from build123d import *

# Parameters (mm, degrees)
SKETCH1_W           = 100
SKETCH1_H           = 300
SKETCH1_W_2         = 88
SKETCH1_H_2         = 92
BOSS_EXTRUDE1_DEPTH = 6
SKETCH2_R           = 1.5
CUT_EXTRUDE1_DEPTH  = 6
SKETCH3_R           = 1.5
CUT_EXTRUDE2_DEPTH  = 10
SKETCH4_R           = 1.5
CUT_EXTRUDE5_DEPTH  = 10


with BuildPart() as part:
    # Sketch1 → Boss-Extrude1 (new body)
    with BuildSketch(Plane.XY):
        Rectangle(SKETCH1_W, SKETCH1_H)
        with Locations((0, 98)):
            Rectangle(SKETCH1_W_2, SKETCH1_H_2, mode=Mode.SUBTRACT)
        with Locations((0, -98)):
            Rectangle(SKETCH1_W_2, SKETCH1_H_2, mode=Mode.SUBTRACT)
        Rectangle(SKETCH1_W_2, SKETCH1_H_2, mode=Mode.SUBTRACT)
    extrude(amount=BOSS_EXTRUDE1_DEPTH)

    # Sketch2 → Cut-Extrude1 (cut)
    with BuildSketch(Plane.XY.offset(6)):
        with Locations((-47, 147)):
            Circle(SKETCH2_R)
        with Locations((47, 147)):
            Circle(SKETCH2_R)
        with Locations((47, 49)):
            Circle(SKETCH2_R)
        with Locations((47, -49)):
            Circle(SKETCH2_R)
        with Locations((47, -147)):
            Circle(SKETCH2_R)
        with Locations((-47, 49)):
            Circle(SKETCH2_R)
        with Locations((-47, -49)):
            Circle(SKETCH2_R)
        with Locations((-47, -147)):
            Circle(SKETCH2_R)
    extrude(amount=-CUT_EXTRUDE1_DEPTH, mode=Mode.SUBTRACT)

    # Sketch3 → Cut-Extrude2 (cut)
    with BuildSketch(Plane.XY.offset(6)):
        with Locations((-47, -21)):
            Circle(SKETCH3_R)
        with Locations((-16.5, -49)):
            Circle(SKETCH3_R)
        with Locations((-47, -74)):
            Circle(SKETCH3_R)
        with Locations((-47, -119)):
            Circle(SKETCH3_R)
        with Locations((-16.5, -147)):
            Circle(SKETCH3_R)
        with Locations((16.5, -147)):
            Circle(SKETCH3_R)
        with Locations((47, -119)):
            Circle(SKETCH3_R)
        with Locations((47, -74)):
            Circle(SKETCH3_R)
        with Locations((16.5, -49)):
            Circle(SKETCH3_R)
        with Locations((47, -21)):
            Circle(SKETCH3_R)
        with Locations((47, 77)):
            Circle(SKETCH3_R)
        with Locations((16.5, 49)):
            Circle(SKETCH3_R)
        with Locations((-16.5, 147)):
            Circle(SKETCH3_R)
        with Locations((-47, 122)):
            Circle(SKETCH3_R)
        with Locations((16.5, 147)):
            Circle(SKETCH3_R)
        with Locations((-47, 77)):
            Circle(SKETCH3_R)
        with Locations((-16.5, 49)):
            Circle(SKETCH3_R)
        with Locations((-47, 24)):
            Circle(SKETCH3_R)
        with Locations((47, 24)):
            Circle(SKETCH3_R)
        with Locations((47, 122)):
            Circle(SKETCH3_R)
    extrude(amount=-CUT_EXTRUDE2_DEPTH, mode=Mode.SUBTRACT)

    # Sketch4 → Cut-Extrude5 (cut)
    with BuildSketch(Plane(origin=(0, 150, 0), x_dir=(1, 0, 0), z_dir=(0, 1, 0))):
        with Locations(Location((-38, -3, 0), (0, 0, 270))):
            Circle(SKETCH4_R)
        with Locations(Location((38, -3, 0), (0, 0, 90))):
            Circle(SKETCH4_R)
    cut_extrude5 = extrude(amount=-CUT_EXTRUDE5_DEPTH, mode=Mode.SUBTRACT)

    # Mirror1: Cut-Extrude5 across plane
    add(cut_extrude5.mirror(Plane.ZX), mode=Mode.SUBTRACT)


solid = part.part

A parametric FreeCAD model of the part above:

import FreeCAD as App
import Part
import Sketcher


def add_polygon(sketch, points):
    """Adds a closed chain of lines whose ends are joined by coincident constraints."""
    first, n = sketch.GeometryCount, len(points)
    for a, b in zip(points, points[1:] + points[:1]):
        sketch.addGeometry(Part.LineSegment(App.Vector(*a, 0), App.Vector(*b, 0)), False)
    for i in range(n):
        sketch.addConstraint(Sketcher.Constraint("Coincident", first + i, 2, first + (i + 1) % n, 1))

doc = App.newDocument("Part")
body = doc.addObject("PartDesign::Body", "Body")

# Sketch on XY plane
sketch1 = doc.addObject("Sketcher::SketchObject", "Sketch")
body.addObject(sketch1)
sketch1.AttachmentSupport = (doc.XY_Plane, [""])
sketch1.MapMode = "FlatFace"
add_polygon(sketch1, [(-50, 150), (-50, -150), (50, -150), (50, 150)])  # lines 0-3
add_polygon(sketch1, [(44, -144), (-44, -144), (-44, -52), (44, -52)])  # lines 4-7
add_polygon(sketch1, [(44, -46), (-44, -46), (-44, 46), (44, 46)])  # lines 8-11
add_polygon(sketch1, [(44, 52), (-44, 52), (-44, 144), (44, 144)])  # lines 12-15
sketch1.addConstraint(Sketcher.Constraint("Vertical", 0))
sketch1.addConstraint(Sketcher.Constraint("Horizontal", 1))
sketch1.addConstraint(Sketcher.Constraint("Vertical", 2))
sketch1.addConstraint(Sketcher.Constraint("Horizontal", 3))
sketch1.addConstraint(Sketcher.Constraint("Horizontal", 4))
sketch1.addConstraint(Sketcher.Constraint("Vertical", 5))
sketch1.addConstraint(Sketcher.Constraint("Horizontal", 6))
sketch1.addConstraint(Sketcher.Constraint("Vertical", 7))
sketch1.addConstraint(Sketcher.Constraint("Horizontal", 8))
sketch1.addConstraint(Sketcher.Constraint("Vertical", 9))
sketch1.addConstraint(Sketcher.Constraint("Horizontal", 10))
sketch1.addConstraint(Sketcher.Constraint("Vertical", 11))
sketch1.addConstraint(Sketcher.Constraint("Horizontal", 12))
sketch1.addConstraint(Sketcher.Constraint("Vertical", 13))
sketch1.addConstraint(Sketcher.Constraint("Horizontal", 14))
sketch1.addConstraint(Sketcher.Constraint("Vertical", 15))
sketch1.addConstraint(Sketcher.Constraint("Symmetric", 0, 2, 2, 2, -1, 1))
sketch1.addConstraint(Sketcher.Constraint("Symmetric", 8, 2, 10, 2, -1, 1))
sketch1.addConstraint(Sketcher.Constraint("Symmetric", 6, 2, 12, 2, -1, 1))
sketch1.addConstraint(Sketcher.Constraint("Symmetric", 4, 2, 14, 2, -1, 1))
sketch1.addConstraint(Sketcher.Constraint("Vertical", 5, 2, 8, 2))
sketch1.addConstraint(Sketcher.Constraint("Vertical", 7, 2, 10, 2))
sketch1.addConstraint(Sketcher.Constraint("Equal", 7, 9))
sketch1.addConstraint(Sketcher.Constraint("DistanceX", 1, 1, 1, 2, 100.0))
sketch1.addConstraint(Sketcher.Constraint("DistanceX", 4, 2, 4, 1, 88.0))
sketch1.addConstraint(Sketcher.Constraint("DistanceY", 0, 2, 0, 1, 300.0))
sketch1.addConstraint(Sketcher.Constraint("DistanceY", 5, 1, 5, 2, 92.0))
sketch1.addConstraint(Sketcher.Constraint("DistanceY", 4, 2, -1, 1, 144.0))
pad1 = doc.addObject("PartDesign::Pad", "Pad")
body.addObject(pad1)
pad1.Profile = sketch1
pad1.Length = 6

# Sketch on XY plane
sketch2 = doc.addObject("Sketcher::SketchObject", "Sketch001")
body.addObject(sketch2)
sketch2.AttachmentSupport = (doc.XY_Plane, [""])
sketch2.MapMode = "FlatFace"
sketch2.AttachmentOffset = App.Placement(App.Vector(0, 0, 6), App.Rotation())
sketch2.addGeometry(Part.Circle(App.Vector(-47, 147, 0), App.Vector(0, 0, 1), 1.5), False)
sketch2.addGeometry(Part.Circle(App.Vector(47, 147, 0), App.Vector(0, 0, 1), 1.5), False)
sketch2.addGeometry(Part.Circle(App.Vector(47, 49, 0), App.Vector(0, 0, 1), 1.5), False)
sketch2.addGeometry(Part.Circle(App.Vector(47, -49, 0), App.Vector(0, 0, 1), 1.5), False)
sketch2.addGeometry(Part.Circle(App.Vector(47, -147, 0), App.Vector(0, 0, 1), 1.5), False)
sketch2.addGeometry(Part.Circle(App.Vector(-47, 49, 0), App.Vector(0, 0, 1), 1.5), False)
sketch2.addGeometry(Part.Circle(App.Vector(-47, -49, 0), App.Vector(0, 0, 1), 1.5), False)
sketch2.addGeometry(Part.Circle(App.Vector(-47, -147, 0), App.Vector(0, 0, 1), 1.5), False)
sketch2.addConstraint(Sketcher.Constraint("Equal", 0, 1))
sketch2.addConstraint(Sketcher.Constraint("Equal", 1, 2))
sketch2.addConstraint(Sketcher.Constraint("Equal", 2, 3))
sketch2.addConstraint(Sketcher.Constraint("Equal", 3, 4))
sketch2.addConstraint(Sketcher.Constraint("Equal", 4, 5))
sketch2.addConstraint(Sketcher.Constraint("Equal", 5, 6))
sketch2.addConstraint(Sketcher.Constraint("Equal", 6, 7))
sketch2.addConstraint(Sketcher.Constraint("Symmetric", 0, 3, 4, 3, -1, 1))
sketch2.addConstraint(Sketcher.Constraint("Symmetric", 3, 3, 5, 3, -1, 1))
sketch2.addConstraint(Sketcher.Constraint("Symmetric", 2, 3, 6, 3, -1, 1))
sketch2.addConstraint(Sketcher.Constraint("Symmetric", 1, 3, 7, 3, -1, 1))
sketch2.addConstraint(Sketcher.Constraint("Symmetric", 0, 3, 1, 3, -2))
sketch2.addConstraint(Sketcher.Constraint("Symmetric", 2, 3, 5, 3, -2))
sketch2.addConstraint(Sketcher.Constraint("Vertical", 1, 3, 2, 3))
sketch2.addConstraint(Sketcher.Constraint("Diameter", 0, 3.0))
sketch2.addConstraint(Sketcher.Constraint("DistanceX", 0, 3, -1, 1, 47.0))
sketch2.addConstraint(Sketcher.Constraint("DistanceY", -1, 1, 0, 3, 147.0))
sketch2.addConstraint(Sketcher.Constraint("DistanceY", -1, 1, 2, 3, 49.0))
pocket1 = doc.addObject("PartDesign::Pocket", "Pocket")
body.addObject(pocket1)
pocket1.Profile = sketch2
pocket1.Length = 6

# Sketch on XY plane
sketch3 = doc.addObject("Sketcher::SketchObject", "Sketch002")
body.addObject(sketch3)
sketch3.AttachmentSupport = (doc.XY_Plane, [""])
sketch3.MapMode = "FlatFace"
sketch3.AttachmentOffset = App.Placement(App.Vector(0, 0, 6), App.Rotation())
sketch3.addGeometry(Part.Circle(App.Vector(-47, -21, 0), App.Vector(0, 0, 1), 1.5), False)
sketch3.addGeometry(Part.Circle(App.Vector(-16.5, -49, 0), App.Vector(0, 0, 1), 1.5), False)
sketch3.addGeometry(Part.Circle(App.Vector(-47, -74, 0), App.Vector(0, 0, 1), 1.5), False)
sketch3.addGeometry(Part.Circle(App.Vector(-47, -119, 0), App.Vector(0, 0, 1), 1.5), False)
sketch3.addGeometry(Part.Circle(App.Vector(-16.5, -147, 0), App.Vector(0, 0, 1), 1.5), False)
sketch3.addGeometry(Part.Circle(App.Vector(16.5, -147, 0), App.Vector(0, 0, 1), 1.5), False)
sketch3.addGeometry(Part.Circle(App.Vector(47, -119, 0), App.Vector(0, 0, 1), 1.5), False)
sketch3.addGeometry(Part.Circle(App.Vector(47, -74, 0), App.Vector(0, 0, 1), 1.5), False)
sketch3.addGeometry(Part.Circle(App.Vector(16.5, -49, 0), App.Vector(0, 0, 1), 1.5), False)
sketch3.addGeometry(Part.Circle(App.Vector(47, -21, 0), App.Vector(0, 0, 1), 1.5), False)
sketch3.addGeometry(Part.Circle(App.Vector(47, 77, 0), App.Vector(0, 0, 1), 1.5), False)
sketch3.addGeometry(Part.Circle(App.Vector(16.5, 49, 0), App.Vector(0, 0, 1), 1.5), False)
sketch3.addGeometry(Part.Circle(App.Vector(-16.5, 147, 0), App.Vector(0, 0, 1), 1.5), False)
sketch3.addGeometry(Part.Circle(App.Vector(-47, 122, 0), App.Vector(0, 0, 1), 1.5), False)
sketch3.addGeometry(Part.Circle(App.Vector(16.5, 147, 0), App.Vector(0, 0, 1), 1.5), False)
sketch3.addGeometry(Part.Circle(App.Vector(-47, 77, 0), App.Vector(0, 0, 1), 1.5), False)
sketch3.addGeometry(Part.Circle(App.Vector(-16.5, 49, 0), App.Vector(0, 0, 1), 1.5), False)
sketch3.addGeometry(Part.Circle(App.Vector(-47, 24, 0), App.Vector(0, 0, 1), 1.5), False)
sketch3.addGeometry(Part.Circle(App.Vector(47, 24, 0), App.Vector(0, 0, 1), 1.5), False)
sketch3.addGeometry(Part.Circle(App.Vector(47, 122, 0), App.Vector(0, 0, 1), 1.5), False)
sketch3.addConstraint(Sketcher.Constraint("Equal", 0, 1))
sketch3.addConstraint(Sketcher.Constraint("Equal", 1, 2))
sketch3.addConstraint(Sketcher.Constraint("Equal", 2, 3))
sketch3.addConstraint(Sketcher.Constraint("Equal", 3, 4))
sketch3.addConstraint(Sketcher.Constraint("Equal", 4, 5))
sketch3.addConstraint(Sketcher.Constraint("Equal", 5, 6))
sketch3.addConstraint(Sketcher.Constraint("Equal", 6, 7))
sketch3.addConstraint(Sketcher.Constraint("Equal", 7, 8))
sketch3.addConstraint(Sketcher.Constraint("Equal", 8, 9))
sketch3.addConstraint(Sketcher.Constraint("Equal", 9, 10))
sketch3.addConstraint(Sketcher.Constraint("Equal", 10, 11))
sketch3.addConstraint(Sketcher.Constraint("Equal", 11, 12))
sketch3.addConstraint(Sketcher.Constraint("Equal", 12, 13))
sketch3.addConstraint(Sketcher.Constraint("Equal", 13, 14))
sketch3.addConstraint(Sketcher.Constraint("Equal", 14, 15))
sketch3.addConstraint(Sketcher.Constraint("Equal", 15, 16))
sketch3.addConstraint(Sketcher.Constraint("Equal", 16, 17))
sketch3.addConstraint(Sketcher.Constraint("Equal", 17, 18))
sketch3.addConstraint(Sketcher.Constraint("Equal", 18, 19))
sketch3.addConstraint(Sketcher.Constraint("Symmetric", 1, 3, 11, 3, -1, 1))
sketch3.addConstraint(Sketcher.Constraint("Symmetric", 5, 3, 12, 3, -1, 1))
sketch3.addConstraint(Sketcher.Constraint("Symmetric", 4, 3, 14, 3, -1, 1))
sketch3.addConstraint(Sketcher.Constraint("Symmetric", 8, 3, 16, 3, -1, 1))
sketch3.addConstraint(Sketcher.Constraint("Symmetric", 4, 3, 5, 3, -2))
sketch3.addConstraint(Sketcher.Constraint("Symmetric", 3, 3, 6, 3, -2))
sketch3.addConstraint(Sketcher.Constraint("Symmetric", 2, 3, 7, 3, -2))
sketch3.addConstraint(Sketcher.Constraint("Symmetric", 1, 3, 8, 3, -2))
sketch3.addConstraint(Sketcher.Constraint("Symmetric", 0, 3, 9, 3, -2))
sketch3.addConstraint(Sketcher.Constraint("Symmetric", 10, 3, 15, 3, -2))
sketch3.addConstraint(Sketcher.Constraint("Symmetric", 17, 3, 18, 3, -2))
sketch3.addConstraint(Sketcher.Constraint("Symmetric", 13, 3, 19, 3, -2))
sketch3.addConstraint(Sketcher.Constraint("Vertical", 0, 3, 2, 3))
sketch3.addConstraint(Sketcher.Constraint("Vertical", 2, 3, 3, 3))
sketch3.addConstraint(Sketcher.Constraint("Vertical", 1, 3, 4, 3))
sketch3.addConstraint(Sketcher.Constraint("Vertical", 9, 3, 10, 3))
sketch3.addConstraint(Sketcher.Constraint("Vertical", 3, 3, 13, 3))
sketch3.addConstraint(Sketcher.Constraint("Vertical", 15, 3, 17, 3))
sketch3.addConstraint(Sketcher.Constraint("Diameter", 0, 3.0))
sketch3.addConstraint(Sketcher.Constraint("DistanceX", 0, 3, -1, 1, 47.0))
sketch3.addConstraint(Sketcher.Constraint("DistanceY", 0, 3, -1, 1, 21.0))
sketch3.addConstraint(Sketcher.Constraint("DistanceY", 1, 3, -1, 1, 49.0))
sketch3.addConstraint(Sketcher.Constraint("DistanceY", 2, 3, -1, 1, 74.0))
sketch3.addConstraint(Sketcher.Constraint("DistanceY", 3, 3, -1, 1, 119.0))
sketch3.addConstraint(Sketcher.Constraint("DistanceY", 4, 3, -1, 1, 147.0))
sketch3.addConstraint(Sketcher.Constraint("DistanceY", -1, 1, 10, 3, 77.0))
sketch3.addConstraint(Sketcher.Constraint("DistanceY", -1, 1, 13, 3, 122.0))
sketch3.addConstraint(Sketcher.Constraint("DistanceY", -1, 1, 17, 3, 24.0))
sketch3.addConstraint(Sketcher.Constraint("DistanceX", 4, 3, 5, 3, 33.0))
pocket2 = doc.addObject("PartDesign::Pocket", "Pocket001")
body.addObject(pocket2)
pocket2.Profile = sketch3
pocket2.Length = 10

# Sketch on XZ plane
sketch4 = doc.addObject("Sketcher::SketchObject", "Sketch003")
body.addObject(sketch4)
sketch4.AttachmentSupport = (doc.XZ_Plane, [""])
sketch4.MapMode = "FlatFace"
sketch4.AttachmentOffset = App.Placement(App.Vector(0, 0, -150), App.Rotation())
sketch4.addGeometry(Part.Circle(App.Vector(-38, 3, 0), App.Vector(0, 0, 1), 1.5), False)
sketch4.addGeometry(Part.Circle(App.Vector(38, 3, 0), App.Vector(0, 0, 1), 1.5), False)
sketch4.addConstraint(Sketcher.Constraint("Equal", 0, 1))
sketch4.addConstraint(Sketcher.Constraint("Symmetric", 0, 3, 1, 3, -2))
sketch4.addConstraint(Sketcher.Constraint("Diameter", 0, 3.0))
sketch4.addConstraint(Sketcher.Constraint("DistanceX", 0, 3, -1, 1, 38.0))
sketch4.addConstraint(Sketcher.Constraint("DistanceY", -1, 1, 0, 3, 3.0))
pocket3 = doc.addObject("PartDesign::Pocket", "Pocket002")
body.addObject(pocket3)
pocket3.Profile = sketch4
pocket3.Length = 10
pocket3.Reversed = True
doc.recompute()

mirrored = doc.addObject("PartDesign::Mirrored", "Mirrored")
body.addObject(mirrored)
mirrored.Originals = [pocket3]
mirrored.MirrorPlane = (doc.XZ_Plane, [""])
body.Tip = mirrored

doc.recompute()
